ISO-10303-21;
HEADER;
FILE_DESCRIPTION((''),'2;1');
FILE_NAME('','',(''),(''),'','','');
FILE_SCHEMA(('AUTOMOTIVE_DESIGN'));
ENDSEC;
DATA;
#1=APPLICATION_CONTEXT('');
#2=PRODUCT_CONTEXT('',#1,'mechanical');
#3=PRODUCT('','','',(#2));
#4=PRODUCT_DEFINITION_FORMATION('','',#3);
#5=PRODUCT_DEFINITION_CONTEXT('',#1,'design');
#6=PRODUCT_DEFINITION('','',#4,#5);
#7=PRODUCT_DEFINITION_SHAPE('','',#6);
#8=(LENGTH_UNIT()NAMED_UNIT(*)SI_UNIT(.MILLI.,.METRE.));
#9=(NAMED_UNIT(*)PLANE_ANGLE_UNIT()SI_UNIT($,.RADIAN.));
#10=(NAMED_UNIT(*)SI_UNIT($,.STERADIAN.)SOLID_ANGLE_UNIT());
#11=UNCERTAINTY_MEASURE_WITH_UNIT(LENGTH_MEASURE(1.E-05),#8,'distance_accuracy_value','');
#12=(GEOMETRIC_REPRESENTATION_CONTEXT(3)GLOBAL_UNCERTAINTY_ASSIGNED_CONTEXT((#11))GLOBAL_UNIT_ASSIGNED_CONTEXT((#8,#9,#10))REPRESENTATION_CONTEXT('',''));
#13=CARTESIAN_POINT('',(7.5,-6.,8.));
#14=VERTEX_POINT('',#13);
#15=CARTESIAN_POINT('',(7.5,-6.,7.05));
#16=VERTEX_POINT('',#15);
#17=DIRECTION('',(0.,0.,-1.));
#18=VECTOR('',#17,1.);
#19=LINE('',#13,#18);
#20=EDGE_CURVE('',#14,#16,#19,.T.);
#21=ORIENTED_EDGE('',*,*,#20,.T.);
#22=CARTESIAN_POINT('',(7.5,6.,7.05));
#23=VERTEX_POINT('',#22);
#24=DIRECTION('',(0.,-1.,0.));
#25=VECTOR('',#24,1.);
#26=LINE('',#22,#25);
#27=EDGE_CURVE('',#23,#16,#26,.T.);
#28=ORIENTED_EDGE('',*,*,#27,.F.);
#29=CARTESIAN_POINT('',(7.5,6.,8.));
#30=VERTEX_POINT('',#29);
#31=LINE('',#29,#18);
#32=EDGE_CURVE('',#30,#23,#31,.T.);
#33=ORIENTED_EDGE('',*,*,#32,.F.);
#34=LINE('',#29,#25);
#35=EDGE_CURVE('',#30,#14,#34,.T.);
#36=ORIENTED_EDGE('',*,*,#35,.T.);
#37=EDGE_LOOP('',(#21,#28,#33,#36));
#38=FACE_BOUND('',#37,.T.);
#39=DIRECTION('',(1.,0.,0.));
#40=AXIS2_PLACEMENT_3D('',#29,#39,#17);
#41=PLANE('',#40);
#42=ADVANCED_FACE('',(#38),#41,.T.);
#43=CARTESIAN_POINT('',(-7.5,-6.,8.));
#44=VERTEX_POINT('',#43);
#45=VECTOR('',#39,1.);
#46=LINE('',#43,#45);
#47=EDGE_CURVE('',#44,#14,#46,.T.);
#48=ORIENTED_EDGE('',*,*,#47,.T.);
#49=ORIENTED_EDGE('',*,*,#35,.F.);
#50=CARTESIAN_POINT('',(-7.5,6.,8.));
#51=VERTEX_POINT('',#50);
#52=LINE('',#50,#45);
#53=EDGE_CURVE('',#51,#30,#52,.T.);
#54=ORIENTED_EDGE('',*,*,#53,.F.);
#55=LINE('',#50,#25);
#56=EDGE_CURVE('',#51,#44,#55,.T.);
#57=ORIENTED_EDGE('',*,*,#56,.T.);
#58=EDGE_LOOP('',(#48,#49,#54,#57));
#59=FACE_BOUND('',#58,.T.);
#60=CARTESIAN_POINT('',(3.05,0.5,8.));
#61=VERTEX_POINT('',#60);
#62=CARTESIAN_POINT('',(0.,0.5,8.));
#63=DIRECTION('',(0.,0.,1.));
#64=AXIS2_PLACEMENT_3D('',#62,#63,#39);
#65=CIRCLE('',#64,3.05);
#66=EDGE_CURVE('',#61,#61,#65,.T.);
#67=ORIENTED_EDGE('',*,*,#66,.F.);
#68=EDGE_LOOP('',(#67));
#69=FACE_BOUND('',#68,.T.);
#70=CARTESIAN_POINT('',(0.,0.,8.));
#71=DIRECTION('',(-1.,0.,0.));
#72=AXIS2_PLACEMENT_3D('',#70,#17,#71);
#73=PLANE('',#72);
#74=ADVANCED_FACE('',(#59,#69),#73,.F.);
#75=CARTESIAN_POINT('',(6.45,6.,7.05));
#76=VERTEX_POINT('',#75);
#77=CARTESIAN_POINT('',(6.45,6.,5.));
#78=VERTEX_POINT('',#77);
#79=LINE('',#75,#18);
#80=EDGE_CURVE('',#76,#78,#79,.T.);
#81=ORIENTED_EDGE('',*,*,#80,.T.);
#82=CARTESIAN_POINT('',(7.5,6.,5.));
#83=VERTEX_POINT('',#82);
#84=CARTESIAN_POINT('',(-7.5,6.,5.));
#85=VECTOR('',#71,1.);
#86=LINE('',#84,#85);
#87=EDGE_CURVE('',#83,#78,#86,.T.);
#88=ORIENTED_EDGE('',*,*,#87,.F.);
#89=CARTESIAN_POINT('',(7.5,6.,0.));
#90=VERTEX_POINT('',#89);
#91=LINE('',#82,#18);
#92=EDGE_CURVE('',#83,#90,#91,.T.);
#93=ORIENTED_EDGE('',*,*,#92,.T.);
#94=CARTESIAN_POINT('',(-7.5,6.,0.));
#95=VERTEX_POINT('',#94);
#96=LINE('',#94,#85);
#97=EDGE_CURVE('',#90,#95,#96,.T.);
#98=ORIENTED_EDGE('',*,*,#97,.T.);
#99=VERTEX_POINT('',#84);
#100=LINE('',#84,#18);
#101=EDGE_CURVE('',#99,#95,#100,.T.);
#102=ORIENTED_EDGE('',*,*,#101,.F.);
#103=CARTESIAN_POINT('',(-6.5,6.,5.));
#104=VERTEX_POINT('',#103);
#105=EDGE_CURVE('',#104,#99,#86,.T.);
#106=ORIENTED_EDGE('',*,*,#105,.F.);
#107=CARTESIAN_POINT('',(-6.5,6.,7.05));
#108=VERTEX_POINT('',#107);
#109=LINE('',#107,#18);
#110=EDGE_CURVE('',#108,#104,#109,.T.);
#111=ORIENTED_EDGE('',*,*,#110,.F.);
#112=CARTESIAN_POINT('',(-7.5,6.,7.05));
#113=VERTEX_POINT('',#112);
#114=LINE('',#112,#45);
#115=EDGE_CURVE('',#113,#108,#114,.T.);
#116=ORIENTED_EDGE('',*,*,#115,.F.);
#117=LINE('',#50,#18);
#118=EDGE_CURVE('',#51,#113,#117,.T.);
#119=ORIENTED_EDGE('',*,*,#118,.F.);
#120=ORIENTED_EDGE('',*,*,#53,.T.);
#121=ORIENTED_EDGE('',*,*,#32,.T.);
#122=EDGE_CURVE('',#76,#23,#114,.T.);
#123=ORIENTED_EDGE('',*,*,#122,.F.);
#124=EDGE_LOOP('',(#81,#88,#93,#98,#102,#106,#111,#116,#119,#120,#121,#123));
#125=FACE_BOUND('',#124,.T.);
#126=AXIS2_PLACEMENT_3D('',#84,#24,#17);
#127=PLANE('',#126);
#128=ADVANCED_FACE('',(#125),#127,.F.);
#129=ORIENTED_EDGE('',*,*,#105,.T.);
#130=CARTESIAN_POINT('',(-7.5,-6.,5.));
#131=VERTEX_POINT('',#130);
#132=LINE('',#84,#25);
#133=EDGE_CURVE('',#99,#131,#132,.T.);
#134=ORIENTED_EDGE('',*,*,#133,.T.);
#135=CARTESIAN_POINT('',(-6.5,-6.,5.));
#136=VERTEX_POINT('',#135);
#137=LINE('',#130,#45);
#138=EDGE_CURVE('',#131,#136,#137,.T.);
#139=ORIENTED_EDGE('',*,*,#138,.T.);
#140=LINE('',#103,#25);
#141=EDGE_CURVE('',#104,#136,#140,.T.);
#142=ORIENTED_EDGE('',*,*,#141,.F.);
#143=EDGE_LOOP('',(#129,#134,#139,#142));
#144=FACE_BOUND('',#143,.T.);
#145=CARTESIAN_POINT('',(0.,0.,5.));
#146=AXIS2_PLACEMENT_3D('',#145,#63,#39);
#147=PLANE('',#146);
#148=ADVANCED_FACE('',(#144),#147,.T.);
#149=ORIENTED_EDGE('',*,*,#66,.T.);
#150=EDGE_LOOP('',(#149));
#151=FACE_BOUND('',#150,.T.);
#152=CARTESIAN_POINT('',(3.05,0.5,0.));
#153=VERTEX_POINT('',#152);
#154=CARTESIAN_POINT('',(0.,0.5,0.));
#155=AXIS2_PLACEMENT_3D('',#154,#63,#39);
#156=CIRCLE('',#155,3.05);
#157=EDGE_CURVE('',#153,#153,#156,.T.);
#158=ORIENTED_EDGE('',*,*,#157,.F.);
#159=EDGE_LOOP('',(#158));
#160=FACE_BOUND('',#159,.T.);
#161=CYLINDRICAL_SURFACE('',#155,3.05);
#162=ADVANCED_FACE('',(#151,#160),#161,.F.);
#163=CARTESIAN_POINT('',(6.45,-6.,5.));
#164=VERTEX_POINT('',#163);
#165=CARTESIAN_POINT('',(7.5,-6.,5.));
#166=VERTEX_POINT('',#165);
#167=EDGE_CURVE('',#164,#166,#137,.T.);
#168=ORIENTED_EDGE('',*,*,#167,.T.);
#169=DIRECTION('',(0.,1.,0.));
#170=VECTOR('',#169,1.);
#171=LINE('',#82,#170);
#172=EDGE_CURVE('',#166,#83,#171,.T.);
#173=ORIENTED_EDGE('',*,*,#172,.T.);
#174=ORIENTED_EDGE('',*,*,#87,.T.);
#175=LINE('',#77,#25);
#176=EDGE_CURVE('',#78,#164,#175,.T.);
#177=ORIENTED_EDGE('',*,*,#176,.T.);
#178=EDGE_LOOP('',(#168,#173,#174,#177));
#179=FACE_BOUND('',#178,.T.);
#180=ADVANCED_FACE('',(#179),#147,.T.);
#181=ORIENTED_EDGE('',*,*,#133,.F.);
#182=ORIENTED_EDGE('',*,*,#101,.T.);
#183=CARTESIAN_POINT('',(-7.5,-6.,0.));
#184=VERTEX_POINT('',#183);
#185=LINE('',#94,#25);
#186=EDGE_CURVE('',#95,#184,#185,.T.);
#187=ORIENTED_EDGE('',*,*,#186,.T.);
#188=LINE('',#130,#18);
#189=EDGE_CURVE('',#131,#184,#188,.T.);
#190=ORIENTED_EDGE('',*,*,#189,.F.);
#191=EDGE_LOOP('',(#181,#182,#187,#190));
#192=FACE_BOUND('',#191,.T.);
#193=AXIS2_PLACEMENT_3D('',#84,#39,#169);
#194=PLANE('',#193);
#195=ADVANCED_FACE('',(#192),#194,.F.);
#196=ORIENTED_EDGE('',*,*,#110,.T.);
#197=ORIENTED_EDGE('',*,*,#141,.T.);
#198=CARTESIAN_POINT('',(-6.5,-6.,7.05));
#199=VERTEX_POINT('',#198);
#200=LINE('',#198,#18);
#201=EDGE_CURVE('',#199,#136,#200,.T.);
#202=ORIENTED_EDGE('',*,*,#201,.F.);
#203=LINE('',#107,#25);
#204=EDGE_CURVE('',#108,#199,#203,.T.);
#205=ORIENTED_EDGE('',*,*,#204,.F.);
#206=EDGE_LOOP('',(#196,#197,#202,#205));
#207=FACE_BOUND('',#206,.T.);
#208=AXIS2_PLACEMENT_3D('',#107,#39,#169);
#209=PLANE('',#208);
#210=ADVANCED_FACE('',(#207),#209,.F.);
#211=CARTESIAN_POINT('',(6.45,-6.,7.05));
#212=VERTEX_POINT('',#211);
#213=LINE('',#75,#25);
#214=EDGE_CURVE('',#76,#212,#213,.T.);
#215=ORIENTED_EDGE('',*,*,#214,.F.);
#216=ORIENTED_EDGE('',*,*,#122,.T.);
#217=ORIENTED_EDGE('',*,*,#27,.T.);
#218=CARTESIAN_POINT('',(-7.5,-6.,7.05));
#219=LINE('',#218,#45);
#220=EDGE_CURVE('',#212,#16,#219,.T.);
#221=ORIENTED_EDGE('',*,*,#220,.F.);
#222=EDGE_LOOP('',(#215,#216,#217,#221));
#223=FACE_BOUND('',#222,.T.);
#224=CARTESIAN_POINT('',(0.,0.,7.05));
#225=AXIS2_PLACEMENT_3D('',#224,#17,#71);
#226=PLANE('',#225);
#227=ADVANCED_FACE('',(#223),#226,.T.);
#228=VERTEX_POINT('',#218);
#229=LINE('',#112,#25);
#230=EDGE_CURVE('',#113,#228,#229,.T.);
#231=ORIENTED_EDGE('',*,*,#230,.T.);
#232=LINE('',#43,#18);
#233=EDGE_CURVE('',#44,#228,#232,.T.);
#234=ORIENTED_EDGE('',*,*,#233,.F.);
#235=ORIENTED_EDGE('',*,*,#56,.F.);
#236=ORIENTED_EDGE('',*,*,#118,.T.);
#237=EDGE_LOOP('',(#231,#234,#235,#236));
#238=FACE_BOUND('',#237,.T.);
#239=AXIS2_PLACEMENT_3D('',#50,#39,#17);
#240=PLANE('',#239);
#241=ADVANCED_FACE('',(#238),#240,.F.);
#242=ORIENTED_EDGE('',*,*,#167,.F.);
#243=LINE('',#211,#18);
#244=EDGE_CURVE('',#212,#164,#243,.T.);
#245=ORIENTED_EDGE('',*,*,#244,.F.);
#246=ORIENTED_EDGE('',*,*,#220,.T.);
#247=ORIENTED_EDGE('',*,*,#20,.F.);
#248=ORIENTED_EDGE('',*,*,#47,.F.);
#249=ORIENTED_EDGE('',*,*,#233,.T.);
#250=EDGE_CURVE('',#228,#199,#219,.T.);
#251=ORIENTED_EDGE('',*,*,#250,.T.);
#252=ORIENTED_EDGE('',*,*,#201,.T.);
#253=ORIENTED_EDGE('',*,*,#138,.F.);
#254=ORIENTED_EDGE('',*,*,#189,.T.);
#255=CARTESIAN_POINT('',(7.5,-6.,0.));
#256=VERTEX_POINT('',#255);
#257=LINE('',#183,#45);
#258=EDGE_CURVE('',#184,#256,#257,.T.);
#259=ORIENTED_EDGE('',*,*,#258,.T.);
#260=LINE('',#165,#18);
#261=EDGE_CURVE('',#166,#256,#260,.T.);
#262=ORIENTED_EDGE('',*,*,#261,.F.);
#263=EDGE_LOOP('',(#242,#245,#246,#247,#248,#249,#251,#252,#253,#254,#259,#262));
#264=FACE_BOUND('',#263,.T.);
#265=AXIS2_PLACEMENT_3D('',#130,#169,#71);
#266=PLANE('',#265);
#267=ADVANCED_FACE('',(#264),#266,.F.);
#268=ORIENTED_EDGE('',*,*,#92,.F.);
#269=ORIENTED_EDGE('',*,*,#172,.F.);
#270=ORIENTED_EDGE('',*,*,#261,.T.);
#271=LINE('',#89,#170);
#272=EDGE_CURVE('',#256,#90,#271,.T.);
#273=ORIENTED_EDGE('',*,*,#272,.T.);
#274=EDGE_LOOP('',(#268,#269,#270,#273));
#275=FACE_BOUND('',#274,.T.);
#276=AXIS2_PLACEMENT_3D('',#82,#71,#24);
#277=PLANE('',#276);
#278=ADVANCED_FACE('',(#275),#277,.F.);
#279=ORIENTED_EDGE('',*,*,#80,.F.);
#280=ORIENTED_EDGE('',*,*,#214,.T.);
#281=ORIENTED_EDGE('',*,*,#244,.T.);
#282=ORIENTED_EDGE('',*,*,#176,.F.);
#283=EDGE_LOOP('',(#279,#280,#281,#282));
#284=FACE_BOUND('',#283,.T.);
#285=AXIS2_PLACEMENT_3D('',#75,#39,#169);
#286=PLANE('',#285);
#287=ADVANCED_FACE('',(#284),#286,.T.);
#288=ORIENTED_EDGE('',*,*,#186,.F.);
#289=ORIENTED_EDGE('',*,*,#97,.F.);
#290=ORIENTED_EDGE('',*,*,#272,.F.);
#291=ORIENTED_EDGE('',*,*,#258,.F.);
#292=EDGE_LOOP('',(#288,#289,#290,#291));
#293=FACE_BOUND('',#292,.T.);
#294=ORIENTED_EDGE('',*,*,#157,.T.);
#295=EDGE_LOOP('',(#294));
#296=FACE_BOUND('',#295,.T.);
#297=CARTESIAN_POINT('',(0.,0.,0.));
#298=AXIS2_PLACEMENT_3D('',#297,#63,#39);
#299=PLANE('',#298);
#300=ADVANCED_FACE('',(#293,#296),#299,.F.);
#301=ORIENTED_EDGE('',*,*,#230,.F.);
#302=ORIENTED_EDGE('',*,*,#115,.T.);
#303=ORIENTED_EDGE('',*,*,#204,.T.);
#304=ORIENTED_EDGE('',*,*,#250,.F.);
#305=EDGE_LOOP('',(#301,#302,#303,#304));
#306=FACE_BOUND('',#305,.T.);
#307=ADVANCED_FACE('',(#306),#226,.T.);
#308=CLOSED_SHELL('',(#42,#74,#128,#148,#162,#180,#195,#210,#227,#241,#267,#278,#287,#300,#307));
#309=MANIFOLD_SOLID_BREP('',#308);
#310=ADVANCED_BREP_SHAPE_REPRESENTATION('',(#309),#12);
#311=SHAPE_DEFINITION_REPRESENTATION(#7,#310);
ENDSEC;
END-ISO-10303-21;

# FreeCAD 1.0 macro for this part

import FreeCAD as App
import Part
import Sketcher

V = App.Vector
Q = App.Units.Quantity

doc = App.newDocument("Part")
body = doc.addObject("PartDesign::Body", "Body")

sketch1 = body.newObject("Sketcher::SketchObject", "Sketch")
sketch1.AttachmentSupport = (doc.getObject("XY_Plane"), [""])
sketch1.MapMode = "FlatFace"
sketch1.addGeometry([
    Part.LineSegment(V(-8, 6, 0), V(-8, -6, 0)),
    Part.LineSegment(V(-8, -6, 0), V(8, -6, 0)),
    Part.LineSegment(V(8, -6, 0), V(8, 6, 0)),
    Part.LineSegment(V(8, 6, 0), V(-8, 6, 0)),
], False)
sketch1.addConstraint([
    Sketcher.Constraint("Coincident", 0, 2, 1, 1),
    Sketcher.Constraint("Coincident", 1, 2, 2, 1),
    Sketcher.Constraint("Coincident", 2, 2, 3, 1),
    Sketcher.Constraint("Coincident", 3, 2, 0, 1),
    Sketcher.Constraint("Vertical", 0),
    Sketcher.Constraint("Horizontal", 1),
    Sketcher.Constraint("Vertical", 2),
    Sketcher.Constraint("Horizontal", 3),
    Sketcher.Constraint("Symmetric", 0, 2, 2, 2, -1, 1),
    Sketcher.Constraint("DistanceX", 1, 1, 1, 2, Q("15 mm")),
    Sketcher.Constraint("DistanceY", 0, 2, 0, 1, Q("12 mm")),
])
pad1 = body.newObject("PartDesign::Pad", "Pad")
pad1.Profile = sketch1
pad1.Length = 5

sketch2 = body.newObject("Sketcher::SketchObject", "Sketch001")
sketch2.AttachmentSupport = (doc.getObject("XY_Plane"), [""])
sketch2.MapMode = "FlatFace"
sketch2.AttachmentOffset = App.Placement(V(0, 0, 5), App.Rotation())
sketch2.addGeometry([
    Part.LineSegment(V(-6, 6, 0), V(-6, -6, 0)),
    Part.LineSegment(V(-6, -6, 0), V(6, -6, 0)),
    Part.LineSegment(V(6, -6, 0), V(6, 6, 0)),
    Part.LineSegment(V(6, 6, 0), V(-6, 6, 0)),
], False)
sketch2.addConstraint([
    Sketcher.Constraint("Coincident", 0, 2, 1, 1),
    Sketcher.Constraint("Coincident", 1, 2, 2, 1),
    Sketcher.Constraint("Coincident", 2, 2, 3, 1),
    Sketcher.Constraint("Coincident", 3, 2, 0, 1),
    Sketcher.Constraint("Vertical", 0),
    Sketcher.Constraint("Horizontal", 1),
    Sketcher.Constraint("Vertical", 2),
    Sketcher.Constraint("Horizontal", 3),
    Sketcher.Constraint("DistanceY", 0, 2, 0, 1, Q("12 mm")),
    Sketcher.Constraint("DistanceY", 0, 2, -1, 1, Q("6 mm")),
    Sketcher.Constraint("DistanceX", 1, 1, 1, 2, Q("12.95 mm")),
    Sketcher.Constraint("DistanceX", 0, 2, -1, 1, Q("6.5 mm")),
])
pad2 = body.newObject("PartDesign::Pad", "Pad001")
pad2.Profile = sketch2
pad2.Length = 2.05

sketch3 = body.newObject("Sketcher::SketchObject", "Sketch002")
sketch3.AttachmentSupport = (doc.getObject("XY_Plane"), [""])
sketch3.MapMode = "FlatFace"
sketch3.AttachmentOffset = App.Placement(V(0, 0, 7.05), App.Rotation())
sketch3.addGeometry([
    Part.LineSegment(V(-8, 6, 0), V(-8, -6, 0)),
    Part.LineSegment(V(-8, -6, 0), V(8, -6, 0)),
    Part.LineSegment(V(8, -6, 0), V(8, 6, 0)),
    Part.LineSegment(V(8, 6, 0), V(-8, 6, 0)),
], False)
sketch3.addConstraint([
    Sketcher.Constraint("Coincident", 0, 2, 1, 1),
    Sketcher.Constraint("Coincident", 1, 2, 2, 1),
    Sketcher.Constraint("Coincident", 2, 2, 3, 1),
    Sketcher.Constraint("Coincident", 3, 2, 0, 1),
    Sketcher.Constraint("Vertical", 0),
    Sketcher.Constraint("Horizontal", 1),
    Sketcher.Constraint("Vertical", 2),
    Sketcher.Constraint("Horizontal", 3),
    Sketcher.Constraint("Symmetric", 0, 2, 2, 2, -1, 1),
    Sketcher.Constraint("DistanceX", 1, 1, 1, 2, Q("15 mm")),
    Sketcher.Constraint("DistanceY", 0, 2, 0, 1, Q("12 mm")),
])
pad3 = body.newObject("PartDesign::Pad", "Pad002")
pad3.Profile = sketch3
pad3.Length = 0.95

sketch4 = body.newObject("Sketcher::SketchObject", "Sketch003")
sketch4.AttachmentSupport = (doc.getObject("XY_Plane"), [""])
sketch4.MapMode = "FlatFace"
sketch4.AttachmentOffset = App.Placement(V(0, 0, 8), App.Rotation())
sketch4.addGeometry(Part.Circle(V(0, 0.5, 0), V(0, 0, 1), 3), False)
sketch4.addConstraint([
    Sketcher.Constraint("PointOnObject", 0, 3, -2),
    Sketcher.Constraint("Diameter", 0, Q("6.1 mm")),
    Sketcher.Constraint("DistanceY", -1, 1, 0, 3, Q("0.5 mm")),
])
pocket1 = body.newObject("PartDesign::Pocket", "Pocket")
pocket1.Profile = sketch4
pocket1.Length = 8

doc.recompute()
